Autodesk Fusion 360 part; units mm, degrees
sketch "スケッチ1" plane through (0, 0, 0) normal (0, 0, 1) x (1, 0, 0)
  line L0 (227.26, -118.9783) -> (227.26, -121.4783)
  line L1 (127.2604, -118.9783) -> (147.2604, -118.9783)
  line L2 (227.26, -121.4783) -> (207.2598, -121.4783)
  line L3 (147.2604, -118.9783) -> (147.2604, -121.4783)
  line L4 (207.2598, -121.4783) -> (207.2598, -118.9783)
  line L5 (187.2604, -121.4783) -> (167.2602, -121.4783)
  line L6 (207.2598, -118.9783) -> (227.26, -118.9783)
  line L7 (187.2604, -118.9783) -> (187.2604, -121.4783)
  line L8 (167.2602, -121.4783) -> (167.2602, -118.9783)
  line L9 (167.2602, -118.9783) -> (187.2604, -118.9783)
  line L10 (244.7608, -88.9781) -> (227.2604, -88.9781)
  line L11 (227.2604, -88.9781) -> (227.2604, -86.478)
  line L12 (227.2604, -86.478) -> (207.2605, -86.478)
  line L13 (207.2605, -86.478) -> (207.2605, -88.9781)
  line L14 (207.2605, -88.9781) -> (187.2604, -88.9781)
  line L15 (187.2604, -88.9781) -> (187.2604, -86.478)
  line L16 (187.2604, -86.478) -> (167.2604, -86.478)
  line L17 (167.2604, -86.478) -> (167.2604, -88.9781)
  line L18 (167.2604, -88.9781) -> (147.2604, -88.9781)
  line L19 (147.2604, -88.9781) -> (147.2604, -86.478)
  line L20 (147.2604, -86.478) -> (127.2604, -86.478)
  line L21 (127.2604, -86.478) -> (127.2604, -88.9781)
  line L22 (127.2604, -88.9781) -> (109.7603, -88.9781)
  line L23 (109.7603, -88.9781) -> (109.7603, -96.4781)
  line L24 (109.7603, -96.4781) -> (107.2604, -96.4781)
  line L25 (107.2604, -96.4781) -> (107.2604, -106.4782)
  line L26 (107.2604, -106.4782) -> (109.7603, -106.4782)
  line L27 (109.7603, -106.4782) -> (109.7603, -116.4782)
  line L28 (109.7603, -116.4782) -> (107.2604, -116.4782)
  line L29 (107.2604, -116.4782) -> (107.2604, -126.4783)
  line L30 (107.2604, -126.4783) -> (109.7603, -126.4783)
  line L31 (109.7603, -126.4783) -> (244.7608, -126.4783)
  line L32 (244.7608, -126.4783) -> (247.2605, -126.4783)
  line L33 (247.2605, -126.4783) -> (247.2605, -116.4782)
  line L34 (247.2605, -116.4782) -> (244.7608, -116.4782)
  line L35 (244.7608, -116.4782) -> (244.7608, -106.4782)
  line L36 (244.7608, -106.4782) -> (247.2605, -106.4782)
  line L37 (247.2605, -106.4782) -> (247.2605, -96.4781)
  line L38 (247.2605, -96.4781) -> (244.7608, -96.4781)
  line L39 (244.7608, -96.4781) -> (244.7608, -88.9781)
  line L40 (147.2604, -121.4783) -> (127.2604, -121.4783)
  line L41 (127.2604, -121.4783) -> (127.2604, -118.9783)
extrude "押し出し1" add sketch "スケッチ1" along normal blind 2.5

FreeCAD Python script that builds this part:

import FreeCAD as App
import Part
import Sketcher

V = App.Vector
Q = App.Units.Quantity


def add_polygon(sketch, points):
    """Adds a closed chain of lines whose ends are joined by coincident constraints."""
    first, n = sketch.GeometryCount, len(points)
    for a, b in zip(points, points[1:] + points[:1]):
        sketch.addGeometry(Part.LineSegment(App.Vector(*a, 0), App.Vector(*b, 0)), False)
    for i in range(n):
        sketch.addConstraint(Sketcher.Constraint("Coincident", first + i, 2, first + (i + 1) % n, 1))

doc = App.newDocument("Part")
body = doc.addObject("PartDesign::Body", "Body")

# Sketch on XY plane
sketch1 = body.newObject("Sketcher::SketchObject", "Sketch")
sketch1.AttachmentSupport = (doc.getObject("XY_Plane"), [""])
sketch1.MapMode = "FlatFace"
add_polygon(sketch1, [(244.7608, -96.4781), (244.7608, -88.9781), (227.2604, -88.9781), (227.2604, -86.478), (207.2605, -86.478), (207.2605, -88.9781), (187.2604, -88.9781), (187.2604, -86.478), (167.2604, -86.478), (167.2604, -88.9781), (147.2604, -88.9781), (147.2604, -86.478), (127.2604, -86.478), (127.2604, -88.9781), (109.7603, -88.9781), (109.7603, -96.4781), (107.2604, -96.4781), (107.2604, -106.4782), (109.7603, -106.4782), (109.7603, -116.4782), (107.2604, -116.4782), (107.2604, -126.4783), (247.2605, -126.4783), (247.2605, -116.4782), (244.7608, -116.4782), (244.7608, -106.4782), (247.2605, -106.4782), (247.2605, -96.4781)])  # lines 0-27
add_polygon(sketch1, [(127.2604, -121.4783), (127.2604, -118.9783), (147.2604, -118.9783), (147.2604, -121.4783)])  # lines 28-31
add_polygon(sketch1, [(187.2604, -118.9783), (187.2604, -121.4783), (167.2602, -121.4783), (167.2602, -118.9783)])  # lines 32-35
add_polygon(sketch1, [(207.2598, -118.9783), (227.26, -118.9783), (227.26, -121.4783), (207.2598, -121.4783)])  # lines 36-39
sketch1.addConstraint(Sketcher.Constraint("Vertical", 0))
sketch1.addConstraint(Sketcher.Constraint("Horizontal", 1))
sketch1.addConstraint(Sketcher.Constraint("Vertical", 2))
sketch1.addConstraint(Sketcher.Constraint("Horizontal", 3))
sketch1.addConstraint(Sketcher.Constraint("Vertical", 4))
sketch1.addConstraint(Sketcher.Constraint("Horizontal", 5))
sketch1.addConstraint(Sketcher.Constraint("Vertical", 6))
sketch1.addConstraint(Sketcher.Constraint("Horizontal", 7))
sketch1.addConstraint(Sketcher.Constraint("Vertical", 8))
sketch1.addConstraint(Sketcher.Constraint("Horizontal", 9))
sketch1.addConstraint(Sketcher.Constraint("Vertical", 10))
sketch1.addConstraint(Sketcher.Constraint("Horizontal", 11))
sketch1.addConstraint(Sketcher.Constraint("Vertical", 12))
sketch1.addConstraint(Sketcher.Constraint("Horizontal", 13))
sketch1.addConstraint(Sketcher.Constraint("Vertical", 14))
sketch1.addConstraint(Sketcher.Constraint("Horizontal", 15))
sketch1.addConstraint(Sketcher.Constraint("Vertical", 16))
sketch1.addConstraint(Sketcher.Constraint("Horizontal", 17))
sketch1.addConstraint(Sketcher.Constraint("Vertical", 18))
sketch1.addConstraint(Sketcher.Constraint("Horizontal", 19))
sketch1.addConstraint(Sketcher.Constraint("Vertical", 20))
sketch1.addConstraint(Sketcher.Constraint("Horizontal", 21))
sketch1.addConstraint(Sketcher.Constraint("Vertical", 22))
sketch1.addConstraint(Sketcher.Constraint("Horizontal", 23))
sketch1.addConstraint(Sketcher.Constraint("Vertical", 24))
sketch1.addConstraint(Sketcher.Constraint("Horizontal", 25))
sketch1.addConstraint(Sketcher.Constraint("Vertical", 26))
sketch1.addConstraint(Sketcher.Constraint("Horizontal", 27))
sketch1.addConstraint(Sketcher.Constraint("Vertical", 28))
sketch1.addConstraint(Sketcher.Constraint("Horizontal", 29))
sketch1.addConstraint(Sketcher.Constraint("Vertical", 30))
sketch1.addConstraint(Sketcher.Constraint("Horizontal", 31))
sketch1.addConstraint(Sketcher.Constraint("Vertical", 32))
sketch1.addConstraint(Sketcher.Constraint("Horizontal", 33))
sketch1.addConstraint(Sketcher.Constraint("Vertical", 34))
sketch1.addConstraint(Sketcher.Constraint("Horizontal", 35))
sketch1.addConstraint(Sketcher.Constraint("Horizontal", 36))
sketch1.addConstraint(Sketcher.Constraint("Vertical", 37))
sketch1.addConstraint(Sketcher.Constraint("Horizontal", 38))
sketch1.addConstraint(Sketcher.Constraint("Vertical", 39))
sketch1.addConstraint(Sketcher.Constraint("Horizontal", 1, 2, 4, 2))
sketch1.addConstraint(Sketcher.Constraint("Horizontal", 3, 2, 6, 2))
sketch1.addConstraint(Sketcher.Constraint("Horizontal", 5, 2, 8, 2))
sketch1.addConstraint(Sketcher.Constraint("Horizontal", 7, 2, 10, 2))
sketch1.addConstraint(Sketcher.Constraint("Horizontal", 9, 2, 12, 2))
sketch1.addConstraint(Sketcher.Constraint("Horizontal", 19, 2, 22, 2))
sketch1.addConstraint(Sketcher.Constraint("Horizontal", 17, 2, 24, 2))
sketch1.addConstraint(Sketcher.Constraint("Horizontal", 15, 2, 26, 2))
sketch1.addConstraint(Sketcher.Constraint("Horizontal", 31, 2, 32, 2))
sketch1.addConstraint(Sketcher.Constraint("Horizontal", 29, 2, 34, 2))
sketch1.addConstraint(Sketcher.Constraint("Horizontal", 35, 2, 36, 2))
sketch1.addConstraint(Sketcher.Constraint("Horizontal", 33, 2, 37, 2))
sketch1.addConstraint(Sketcher.Constraint("Vertical", 14, 2, 17, 2))
sketch1.addConstraint(Sketcher.Constraint("Vertical", 16, 2, 19, 2))
sketch1.addConstraint(Sketcher.Constraint("Vertical", 0, 2, 23, 2))
sketch1.addConstraint(Sketcher.Constraint("Vertical", 22, 2, 25, 2))
sketch1.addConstraint(Sketcher.Constraint("Vertical", 12, 2, 28, 2))
sketch1.addConstraint(Sketcher.Constraint("Vertical", 10, 2, 29, 2))
sketch1.addConstraint(Sketcher.Constraint("Vertical", 6, 2, 32, 2))
sketch1.addConstraint(Sketcher.Constraint("Equal", 5, 7))
sketch1.addConstraint(Sketcher.Constraint("Equal", 7, 9))
sketch1.addConstraint(Sketcher.Constraint("Equal", 9, 11))
sketch1.addConstraint(Sketcher.Constraint("Equal", 19, 23))
sketch1.addConstraint(Sketcher.Constraint("Equal", 3, 29))
sketch1.addConstraint(Sketcher.Constraint("Equal", 5, 33))
sketch1.addConstraint(Sketcher.Constraint("Equal", 35, 36))
sketch1.addConstraint(Sketcher.Constraint("Equal", 16, 18))
sketch1.addConstraint(Sketcher.Constraint("Equal", 18, 20))
sketch1.addConstraint(Sketcher.Constraint("Equal", 12, 28))
sketch1.addConstraint(Sketcher.Constraint("Equal", 19, 30))
sketch1.addConstraint(Sketcher.Constraint("DistanceX", 3, 2, 3, 1, Q("20 mm")))
sketch1.addConstraint(Sketcher.Constraint("DistanceX", 21, 1, 21, 2, Q("140 mm")))
sketch1.addConstraint(Sketcher.Constraint("DistanceY", 16, 2, 16, 1, Q("10 mm")))
sketch1.addConstraint(Sketcher.Constraint("DistanceX", 13, 2, 13, 1, Q("17.5 mm")))
sketch1.addConstraint(Sketcher.Constraint("DistanceX", 15, 2, 15, 1, Q("2.5 mm")))
sketch1.addConstraint(Sketcher.Constraint("DistanceY", 0, 1, 0, 2, Q("7.5 mm")))
sketch1.addConstraint(Sketcher.Constraint("DistanceY", 30, 2, 18, 2, Q("5 mm")))
sketch1.addConstraint(Sketcher.Constraint("DistanceX", -1, 1, 36, 2, Q("227.26 mm")))
sketch1.addConstraint(Sketcher.Constraint("DistanceY", 0, 2, -1, 1, Q("88.978 mm")))
sketch1.addConstraint(Sketcher.Constraint("DistanceX", -1, 1, 0, 2, Q("244.7608 mm")))
pad1 = body.newObject("PartDesign::Pad", "Pad")
pad1.Profile = sketch1
pad1.Length = 2.5

doc.recompute()
